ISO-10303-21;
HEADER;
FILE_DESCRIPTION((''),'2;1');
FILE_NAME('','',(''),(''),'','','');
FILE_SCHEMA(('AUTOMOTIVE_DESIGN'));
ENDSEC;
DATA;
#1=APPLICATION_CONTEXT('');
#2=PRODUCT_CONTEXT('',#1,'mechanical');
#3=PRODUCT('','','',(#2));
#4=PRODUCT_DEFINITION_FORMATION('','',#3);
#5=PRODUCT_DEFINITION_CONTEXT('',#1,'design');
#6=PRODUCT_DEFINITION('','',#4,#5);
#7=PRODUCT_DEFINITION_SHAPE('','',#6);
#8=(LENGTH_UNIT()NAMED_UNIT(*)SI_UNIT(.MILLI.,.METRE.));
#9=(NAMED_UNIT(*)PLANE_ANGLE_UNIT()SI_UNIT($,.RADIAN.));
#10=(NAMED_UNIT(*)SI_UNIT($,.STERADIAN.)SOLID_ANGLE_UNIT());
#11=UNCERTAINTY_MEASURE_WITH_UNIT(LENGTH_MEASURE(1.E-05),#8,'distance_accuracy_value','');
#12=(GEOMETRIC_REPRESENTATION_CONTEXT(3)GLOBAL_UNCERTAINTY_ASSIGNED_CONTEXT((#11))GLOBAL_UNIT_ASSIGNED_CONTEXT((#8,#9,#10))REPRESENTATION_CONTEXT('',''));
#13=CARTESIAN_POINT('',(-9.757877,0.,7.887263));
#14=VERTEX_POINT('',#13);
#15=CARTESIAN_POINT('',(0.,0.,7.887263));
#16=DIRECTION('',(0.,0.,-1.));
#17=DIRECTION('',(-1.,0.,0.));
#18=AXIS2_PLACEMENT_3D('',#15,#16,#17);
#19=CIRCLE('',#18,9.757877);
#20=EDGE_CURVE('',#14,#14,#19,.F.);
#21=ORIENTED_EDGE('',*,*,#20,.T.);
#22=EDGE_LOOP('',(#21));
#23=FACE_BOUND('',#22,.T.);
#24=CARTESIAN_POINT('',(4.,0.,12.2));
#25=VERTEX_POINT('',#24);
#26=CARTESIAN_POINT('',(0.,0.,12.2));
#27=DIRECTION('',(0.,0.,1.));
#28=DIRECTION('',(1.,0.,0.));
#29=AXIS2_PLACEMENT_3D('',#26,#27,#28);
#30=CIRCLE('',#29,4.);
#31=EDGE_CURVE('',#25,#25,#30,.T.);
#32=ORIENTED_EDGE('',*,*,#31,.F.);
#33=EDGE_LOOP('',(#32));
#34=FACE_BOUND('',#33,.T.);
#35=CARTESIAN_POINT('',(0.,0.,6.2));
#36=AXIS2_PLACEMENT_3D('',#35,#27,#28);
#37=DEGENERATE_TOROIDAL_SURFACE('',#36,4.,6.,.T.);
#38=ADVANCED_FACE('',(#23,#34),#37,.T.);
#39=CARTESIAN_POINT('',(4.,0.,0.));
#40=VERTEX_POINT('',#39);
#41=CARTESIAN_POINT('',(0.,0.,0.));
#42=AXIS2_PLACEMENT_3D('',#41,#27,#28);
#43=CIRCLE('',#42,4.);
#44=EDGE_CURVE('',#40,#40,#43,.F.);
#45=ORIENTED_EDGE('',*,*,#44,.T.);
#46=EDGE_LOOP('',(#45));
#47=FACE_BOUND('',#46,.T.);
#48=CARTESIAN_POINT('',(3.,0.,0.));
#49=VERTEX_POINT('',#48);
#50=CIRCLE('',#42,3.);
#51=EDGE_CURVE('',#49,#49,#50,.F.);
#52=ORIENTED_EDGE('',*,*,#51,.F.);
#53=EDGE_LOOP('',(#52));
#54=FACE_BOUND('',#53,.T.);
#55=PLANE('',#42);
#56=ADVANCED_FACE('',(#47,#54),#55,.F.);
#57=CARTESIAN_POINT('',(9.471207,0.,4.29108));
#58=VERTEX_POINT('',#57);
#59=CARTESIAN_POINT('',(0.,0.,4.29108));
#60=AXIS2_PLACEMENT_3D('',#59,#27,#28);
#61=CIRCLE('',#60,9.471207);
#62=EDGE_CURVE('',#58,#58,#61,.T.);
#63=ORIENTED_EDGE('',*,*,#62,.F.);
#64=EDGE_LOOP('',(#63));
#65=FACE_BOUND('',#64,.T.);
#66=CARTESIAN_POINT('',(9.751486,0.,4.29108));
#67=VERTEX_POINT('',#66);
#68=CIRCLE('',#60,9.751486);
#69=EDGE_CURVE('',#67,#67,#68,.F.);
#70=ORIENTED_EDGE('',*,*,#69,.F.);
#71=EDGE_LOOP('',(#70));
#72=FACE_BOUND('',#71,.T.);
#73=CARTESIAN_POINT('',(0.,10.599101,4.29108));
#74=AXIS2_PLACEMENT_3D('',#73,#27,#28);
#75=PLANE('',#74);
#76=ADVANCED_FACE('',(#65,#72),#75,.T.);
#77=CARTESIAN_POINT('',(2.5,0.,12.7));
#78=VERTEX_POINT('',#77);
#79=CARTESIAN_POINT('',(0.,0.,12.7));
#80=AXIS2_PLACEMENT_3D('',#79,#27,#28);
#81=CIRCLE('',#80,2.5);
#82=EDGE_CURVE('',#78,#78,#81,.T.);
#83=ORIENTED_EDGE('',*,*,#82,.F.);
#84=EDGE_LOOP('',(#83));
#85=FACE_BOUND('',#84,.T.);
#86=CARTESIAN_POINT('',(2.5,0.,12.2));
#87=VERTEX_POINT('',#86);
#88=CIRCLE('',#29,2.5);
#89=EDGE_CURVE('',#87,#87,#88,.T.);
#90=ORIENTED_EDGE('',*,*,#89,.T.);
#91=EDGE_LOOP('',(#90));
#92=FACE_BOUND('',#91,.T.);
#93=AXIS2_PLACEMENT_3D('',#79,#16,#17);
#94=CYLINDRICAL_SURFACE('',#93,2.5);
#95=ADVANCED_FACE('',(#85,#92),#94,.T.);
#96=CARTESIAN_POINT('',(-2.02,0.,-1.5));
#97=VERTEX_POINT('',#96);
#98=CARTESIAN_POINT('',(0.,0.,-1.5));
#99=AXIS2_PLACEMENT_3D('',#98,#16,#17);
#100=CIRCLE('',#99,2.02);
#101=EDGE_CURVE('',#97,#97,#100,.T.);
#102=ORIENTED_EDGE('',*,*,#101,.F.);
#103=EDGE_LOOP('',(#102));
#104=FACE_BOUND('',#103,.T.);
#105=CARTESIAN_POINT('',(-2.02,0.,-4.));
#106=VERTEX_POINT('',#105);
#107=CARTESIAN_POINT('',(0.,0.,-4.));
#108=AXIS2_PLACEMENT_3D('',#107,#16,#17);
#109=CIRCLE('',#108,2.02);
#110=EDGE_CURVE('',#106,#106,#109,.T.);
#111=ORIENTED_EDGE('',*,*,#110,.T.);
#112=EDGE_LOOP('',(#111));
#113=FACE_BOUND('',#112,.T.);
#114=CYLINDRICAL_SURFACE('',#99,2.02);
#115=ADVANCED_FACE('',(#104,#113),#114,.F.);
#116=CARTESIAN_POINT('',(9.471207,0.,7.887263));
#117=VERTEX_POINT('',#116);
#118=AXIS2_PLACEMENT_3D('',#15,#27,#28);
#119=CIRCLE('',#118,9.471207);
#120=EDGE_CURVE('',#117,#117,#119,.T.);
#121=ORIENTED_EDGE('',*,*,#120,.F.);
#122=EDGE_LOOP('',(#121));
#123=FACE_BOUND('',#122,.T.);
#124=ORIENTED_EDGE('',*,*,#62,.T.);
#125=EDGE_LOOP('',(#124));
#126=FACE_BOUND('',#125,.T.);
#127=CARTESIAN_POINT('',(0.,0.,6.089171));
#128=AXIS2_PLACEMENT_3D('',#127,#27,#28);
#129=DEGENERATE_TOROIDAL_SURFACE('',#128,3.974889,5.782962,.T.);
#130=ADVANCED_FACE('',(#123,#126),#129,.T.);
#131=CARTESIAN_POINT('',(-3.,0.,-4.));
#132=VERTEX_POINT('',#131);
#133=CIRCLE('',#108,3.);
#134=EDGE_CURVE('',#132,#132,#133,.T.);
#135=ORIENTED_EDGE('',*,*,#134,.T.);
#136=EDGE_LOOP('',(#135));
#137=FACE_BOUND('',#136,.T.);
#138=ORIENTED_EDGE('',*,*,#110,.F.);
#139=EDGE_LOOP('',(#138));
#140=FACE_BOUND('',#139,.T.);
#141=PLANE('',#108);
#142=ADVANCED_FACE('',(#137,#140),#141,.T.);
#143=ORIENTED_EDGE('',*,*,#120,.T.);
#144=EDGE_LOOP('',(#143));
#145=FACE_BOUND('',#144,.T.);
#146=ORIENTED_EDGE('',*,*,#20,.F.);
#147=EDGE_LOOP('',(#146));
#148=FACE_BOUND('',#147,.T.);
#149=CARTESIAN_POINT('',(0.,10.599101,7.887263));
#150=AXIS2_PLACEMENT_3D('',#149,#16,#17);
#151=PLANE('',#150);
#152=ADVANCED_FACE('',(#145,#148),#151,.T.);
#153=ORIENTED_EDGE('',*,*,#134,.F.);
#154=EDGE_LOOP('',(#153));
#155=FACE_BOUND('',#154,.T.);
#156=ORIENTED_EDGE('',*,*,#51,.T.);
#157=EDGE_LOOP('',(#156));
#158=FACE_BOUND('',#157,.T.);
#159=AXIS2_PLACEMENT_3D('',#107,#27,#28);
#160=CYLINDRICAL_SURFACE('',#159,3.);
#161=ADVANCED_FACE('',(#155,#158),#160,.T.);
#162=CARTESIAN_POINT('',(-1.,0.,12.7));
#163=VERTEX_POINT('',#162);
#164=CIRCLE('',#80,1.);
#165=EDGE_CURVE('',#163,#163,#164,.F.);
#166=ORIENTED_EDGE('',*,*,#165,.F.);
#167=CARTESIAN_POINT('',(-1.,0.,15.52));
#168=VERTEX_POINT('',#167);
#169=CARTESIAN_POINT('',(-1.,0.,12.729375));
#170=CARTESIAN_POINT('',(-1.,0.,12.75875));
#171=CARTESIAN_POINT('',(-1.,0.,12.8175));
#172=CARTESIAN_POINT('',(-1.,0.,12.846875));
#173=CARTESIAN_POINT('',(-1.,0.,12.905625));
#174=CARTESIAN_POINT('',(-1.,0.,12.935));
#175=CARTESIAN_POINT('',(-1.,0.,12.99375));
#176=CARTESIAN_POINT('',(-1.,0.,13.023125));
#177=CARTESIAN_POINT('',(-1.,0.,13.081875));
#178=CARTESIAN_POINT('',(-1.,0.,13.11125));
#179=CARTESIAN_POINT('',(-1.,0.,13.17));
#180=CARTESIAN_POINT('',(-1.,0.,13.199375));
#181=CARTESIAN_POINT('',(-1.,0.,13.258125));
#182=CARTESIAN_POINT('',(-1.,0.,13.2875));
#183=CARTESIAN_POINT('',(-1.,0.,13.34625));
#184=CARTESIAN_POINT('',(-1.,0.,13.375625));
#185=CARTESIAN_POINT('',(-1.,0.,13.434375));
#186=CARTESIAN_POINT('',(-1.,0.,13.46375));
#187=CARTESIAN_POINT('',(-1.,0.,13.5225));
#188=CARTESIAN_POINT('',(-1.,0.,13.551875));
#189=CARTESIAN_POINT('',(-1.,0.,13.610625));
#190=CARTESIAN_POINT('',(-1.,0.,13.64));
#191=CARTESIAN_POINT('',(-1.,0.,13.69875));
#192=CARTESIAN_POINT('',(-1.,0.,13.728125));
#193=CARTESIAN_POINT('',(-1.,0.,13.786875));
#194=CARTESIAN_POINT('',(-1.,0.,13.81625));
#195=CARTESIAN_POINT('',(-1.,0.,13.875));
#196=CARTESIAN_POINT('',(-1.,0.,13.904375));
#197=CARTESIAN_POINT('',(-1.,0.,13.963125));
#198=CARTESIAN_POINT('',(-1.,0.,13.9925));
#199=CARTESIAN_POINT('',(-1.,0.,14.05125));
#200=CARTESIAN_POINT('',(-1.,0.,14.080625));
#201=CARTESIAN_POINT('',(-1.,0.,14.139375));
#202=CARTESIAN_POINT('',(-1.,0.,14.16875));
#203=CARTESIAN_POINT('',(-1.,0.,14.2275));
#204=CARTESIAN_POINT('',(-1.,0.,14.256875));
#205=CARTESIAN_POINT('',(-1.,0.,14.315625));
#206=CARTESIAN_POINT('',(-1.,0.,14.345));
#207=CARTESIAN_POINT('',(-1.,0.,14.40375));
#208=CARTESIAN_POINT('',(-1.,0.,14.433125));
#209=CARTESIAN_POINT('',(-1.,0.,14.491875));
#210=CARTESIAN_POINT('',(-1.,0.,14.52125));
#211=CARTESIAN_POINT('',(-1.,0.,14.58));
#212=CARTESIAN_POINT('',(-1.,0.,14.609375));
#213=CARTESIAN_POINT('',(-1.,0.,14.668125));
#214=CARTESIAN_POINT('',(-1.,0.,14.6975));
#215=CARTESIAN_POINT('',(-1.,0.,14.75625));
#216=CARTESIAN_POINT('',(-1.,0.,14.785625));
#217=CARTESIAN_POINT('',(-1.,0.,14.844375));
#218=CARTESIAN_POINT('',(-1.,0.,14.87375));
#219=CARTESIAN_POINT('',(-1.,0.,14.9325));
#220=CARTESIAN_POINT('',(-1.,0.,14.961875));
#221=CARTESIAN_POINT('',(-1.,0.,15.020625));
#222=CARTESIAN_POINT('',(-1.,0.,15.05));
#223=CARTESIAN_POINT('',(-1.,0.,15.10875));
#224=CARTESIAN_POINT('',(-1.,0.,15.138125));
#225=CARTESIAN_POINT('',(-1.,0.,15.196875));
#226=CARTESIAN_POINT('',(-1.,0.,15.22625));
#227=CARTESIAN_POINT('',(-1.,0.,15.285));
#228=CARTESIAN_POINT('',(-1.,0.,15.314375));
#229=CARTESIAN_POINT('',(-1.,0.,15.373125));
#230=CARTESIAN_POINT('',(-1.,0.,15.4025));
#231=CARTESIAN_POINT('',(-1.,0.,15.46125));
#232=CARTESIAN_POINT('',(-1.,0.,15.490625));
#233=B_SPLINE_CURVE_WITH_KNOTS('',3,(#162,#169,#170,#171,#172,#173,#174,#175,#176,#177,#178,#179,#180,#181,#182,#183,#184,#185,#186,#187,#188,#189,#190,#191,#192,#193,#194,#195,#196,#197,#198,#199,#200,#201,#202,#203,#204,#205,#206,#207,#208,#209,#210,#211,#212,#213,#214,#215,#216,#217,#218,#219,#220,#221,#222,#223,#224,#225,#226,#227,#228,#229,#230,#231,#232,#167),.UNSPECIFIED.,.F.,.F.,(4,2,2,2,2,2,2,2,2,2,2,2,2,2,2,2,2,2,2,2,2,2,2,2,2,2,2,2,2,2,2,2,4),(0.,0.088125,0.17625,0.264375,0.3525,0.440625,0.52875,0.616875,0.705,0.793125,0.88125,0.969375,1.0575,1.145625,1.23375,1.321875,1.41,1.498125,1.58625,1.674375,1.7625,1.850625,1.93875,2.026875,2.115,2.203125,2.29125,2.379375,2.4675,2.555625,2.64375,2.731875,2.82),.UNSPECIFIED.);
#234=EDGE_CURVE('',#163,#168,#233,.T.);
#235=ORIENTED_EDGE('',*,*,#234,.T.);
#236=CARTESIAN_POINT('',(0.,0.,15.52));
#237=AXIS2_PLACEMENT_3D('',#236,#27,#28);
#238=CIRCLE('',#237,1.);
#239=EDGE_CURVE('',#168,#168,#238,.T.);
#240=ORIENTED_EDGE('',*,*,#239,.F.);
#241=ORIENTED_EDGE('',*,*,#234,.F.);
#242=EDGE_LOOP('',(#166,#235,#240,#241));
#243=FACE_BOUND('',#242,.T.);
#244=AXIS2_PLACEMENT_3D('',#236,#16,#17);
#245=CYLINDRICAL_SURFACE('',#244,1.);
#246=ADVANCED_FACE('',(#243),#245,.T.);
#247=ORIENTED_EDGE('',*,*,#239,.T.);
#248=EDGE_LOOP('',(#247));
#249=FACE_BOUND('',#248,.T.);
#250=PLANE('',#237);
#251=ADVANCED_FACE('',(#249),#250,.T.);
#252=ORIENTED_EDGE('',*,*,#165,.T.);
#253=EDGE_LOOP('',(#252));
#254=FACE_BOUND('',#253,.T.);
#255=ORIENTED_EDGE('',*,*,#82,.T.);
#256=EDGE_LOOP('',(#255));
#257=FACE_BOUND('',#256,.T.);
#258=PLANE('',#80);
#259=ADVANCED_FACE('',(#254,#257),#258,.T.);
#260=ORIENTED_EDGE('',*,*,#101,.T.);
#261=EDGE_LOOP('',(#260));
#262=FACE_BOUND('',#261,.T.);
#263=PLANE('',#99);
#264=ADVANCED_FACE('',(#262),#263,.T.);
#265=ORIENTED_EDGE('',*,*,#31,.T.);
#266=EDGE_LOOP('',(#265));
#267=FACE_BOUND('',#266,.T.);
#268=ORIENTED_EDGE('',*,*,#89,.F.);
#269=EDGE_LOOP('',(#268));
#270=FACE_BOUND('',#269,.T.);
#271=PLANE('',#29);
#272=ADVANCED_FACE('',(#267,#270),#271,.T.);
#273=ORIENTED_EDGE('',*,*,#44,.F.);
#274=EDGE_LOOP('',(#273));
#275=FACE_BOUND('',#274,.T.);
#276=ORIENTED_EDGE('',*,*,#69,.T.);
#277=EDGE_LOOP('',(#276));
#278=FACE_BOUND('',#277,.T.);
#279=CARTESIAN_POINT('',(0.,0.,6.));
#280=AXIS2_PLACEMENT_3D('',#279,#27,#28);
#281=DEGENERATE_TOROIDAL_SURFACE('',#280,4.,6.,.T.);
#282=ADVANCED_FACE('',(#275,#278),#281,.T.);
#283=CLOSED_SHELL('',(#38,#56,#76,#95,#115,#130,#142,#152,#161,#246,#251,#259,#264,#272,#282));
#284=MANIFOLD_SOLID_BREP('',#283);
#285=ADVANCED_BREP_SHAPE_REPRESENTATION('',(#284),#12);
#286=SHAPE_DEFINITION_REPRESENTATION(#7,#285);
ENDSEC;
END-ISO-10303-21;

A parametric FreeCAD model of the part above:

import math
import FreeCAD as App
import Part
import Sketcher

V = App.Vector
Q = App.Units.Quantity


def edges_at(feature, points):
    """Names of the edges that pass closest to the given points."""
    edges = feature.Shape.Edges
    near = lambda p: min(range(len(edges)), key=lambda i: edges[i].distToShape(Part.Vertex(*p))[0])
    return sorted({f"Edge{near(p) + 1}" for p in points})

doc = App.newDocument("Part")
body = doc.addObject("PartDesign::Body", "Body")

# Sketch on XY plane
sketch1 = doc.addObject("Sketcher::SketchObject", "Sketch")
body.addObject(sketch1)
sketch1.AttachmentSupport = (doc.XY_Plane, [""])
sketch1.MapMode = "FlatFace"
sketch1.addGeometry(Part.Circle(V(0, 0, 0), V(0, 0, 1), 10), False)
sketch1.addConstraint([
    Sketcher.Constraint("Coincident", 0, 3, -1, 1),
    Sketcher.Constraint("Diameter", 0, Q("20 mm")),
])
pad1 = doc.addObject("PartDesign::Pad", "Pad")
body.addObject(pad1)
pad1.Profile = sketch1
pad1.Length = 12.2

# Sketch on XY plane
sketch2 = doc.addObject("Sketcher::SketchObject", "Sketch001")
body.addObject(sketch2)
sketch2.AttachmentSupport = (doc.XY_Plane, [""])
sketch2.MapMode = "FlatFace"
sketch2.AttachmentOffset = App.Placement(V(0, 0, 12.2), App.Rotation())
sketch2.addGeometry(Part.Circle(V(0, 0, 0), V(0, 0, 1), 2.5), False)
sketch2.addConstraint([
    Sketcher.Constraint("Coincident", 0, 3, -1, 1),
    Sketcher.Constraint("Diameter", 0, Q("5 mm")),
])
pad2 = doc.addObject("PartDesign::Pad", "Pad001")
body.addObject(pad2)
pad2.Profile = sketch2
pad2.Length = 0.5

# Sketch on XY plane
sketch3 = doc.addObject("Sketcher::SketchObject", "Sketch002")
body.addObject(sketch3)
sketch3.AttachmentSupport = (doc.XY_Plane, [""])
sketch3.MapMode = "FlatFace"
sketch3.AttachmentOffset = App.Placement(V(0, 0, 12.2), App.Rotation())
sketch3.addGeometry(Part.Circle(V(0, 0, 0), V(0, 0, 1), 1), False)
sketch3.addConstraint([
    Sketcher.Constraint("Coincident", 0, 3, -1, 1),
    Sketcher.Constraint("Diameter", 0, Q("2 mm")),
])
pad3 = doc.addObject("PartDesign::Pad", "Pad002")
body.addObject(pad3)
pad3.Profile = sketch3
pad3.Length = 3.32
doc.recompute()

fillet = doc.addObject("PartDesign::Fillet", "Fillet")
body.addObject(fillet)
fillet.Base = (pad3, edges_at(pad3, [(-10, 0, 0), (-10, 0, 12.2)]))
fillet.Radius = 6

# Sketch on XY plane
sketch4 = doc.addObject("Sketcher::SketchObject", "Sketch003")
body.addObject(sketch4)
sketch4.AttachmentSupport = (doc.XY_Plane, [""])
sketch4.MapMode = "FlatFace"
sketch4.addGeometry(Part.Circle(V(0, 0, 0), V(0, 0, 1), 3), False)
sketch4.addConstraint([
    Sketcher.Constraint("Coincident", 0, 3, -1, 1),
    Sketcher.Constraint("Diameter", 0, Q("6 mm")),
])
pad4 = doc.addObject("PartDesign::Pad", "Pad003")
body.addObject(pad4)
pad4.Profile = sketch4
pad4.Length = 4
pad4.Reversed = True

# Sketch on XY plane
sketch5 = doc.addObject("Sketcher::SketchObject", "Sketch004")
body.addObject(sketch5)
sketch5.AttachmentSupport = (doc.XY_Plane, [""])
sketch5.MapMode = "FlatFace"
sketch5.AttachmentOffset = App.Placement(V(0, 0, -4), App.Rotation())
sketch5.addGeometry(Part.Circle(V(0, 0, 0), V(0, 0, 1), 2), False)
sketch5.addConstraint([
    Sketcher.Constraint("Coincident", 0, 3, -1, 1),
    Sketcher.Constraint("Diameter", 0, Q("4.04 mm")),
])
pocket1 = doc.addObject("PartDesign::Pocket", "Pocket")
body.addObject(pocket1)
pocket1.Profile = sketch5
pocket1.Length = 2.5
pocket1.Reversed = True

# Sketch on YZ plane
sketch6 = doc.addObject("Sketcher::SketchObject", "Sketch005")
body.addObject(sketch6)
sketch6.AttachmentSupport = (doc.YZ_Plane, [""])
sketch6.MapMode = "FlatFace"
sketch6.addGeometry([
    Part.LineSegment(V(10.6, 4.3, 0), V(10.6, 7.9, 0)),
    Part.LineSegment(V(10.6, 7.9, 0), V(9.5, 7.9, 0)),
    Part.ArcOfCircle(Part.Circle(V(4, 6.1, 0), V(0, 0, 1), 5.8), math.radians(-18), math.radians(18)),
    Part.LineSegment(V(9.5, 4.3, 0), V(10.6, 4.3, 0)),
], False)
sketch6.addConstraint([
    Sketcher.Constraint("Coincident", 0, 2, 1, 1),
    Sketcher.Constraint("Coincident", 1, 2, 2, 2),
    Sketcher.Constraint("Coincident", 2, 1, 3, 1),
    Sketcher.Constraint("Coincident", 3, 2, 0, 1),
    Sketcher.Constraint("Vertical", 0),
    Sketcher.Constraint("Horizontal", 1),
    Sketcher.Constraint("Horizontal", 3),
    Sketcher.Constraint("Vertical", 1, 2, 2, 1),
    Sketcher.Constraint("Radius", 2, Q("5.782962 mm")),
    Sketcher.Constraint("DistanceX", -1, 1, 0, 2, Q("10.599101 mm")),
    Sketcher.Constraint("DistanceX", 1, 2, 1, 1, Q("1.127894 mm")),
    Sketcher.Constraint("DistanceY", 0, 1, 0, 2, Q("3.596183 mm")),
    Sketcher.Constraint("DistanceY", -1, 1, 2, 3, Q("6.089171 mm")),
])
groove = doc.addObject("PartDesign::Groove", "Groove")
body.addObject(groove)
groove.Profile = sketch6
groove.ReferenceAxis = (sketch6, ["V_Axis"])
groove.Angle = 360

doc.recompute()
